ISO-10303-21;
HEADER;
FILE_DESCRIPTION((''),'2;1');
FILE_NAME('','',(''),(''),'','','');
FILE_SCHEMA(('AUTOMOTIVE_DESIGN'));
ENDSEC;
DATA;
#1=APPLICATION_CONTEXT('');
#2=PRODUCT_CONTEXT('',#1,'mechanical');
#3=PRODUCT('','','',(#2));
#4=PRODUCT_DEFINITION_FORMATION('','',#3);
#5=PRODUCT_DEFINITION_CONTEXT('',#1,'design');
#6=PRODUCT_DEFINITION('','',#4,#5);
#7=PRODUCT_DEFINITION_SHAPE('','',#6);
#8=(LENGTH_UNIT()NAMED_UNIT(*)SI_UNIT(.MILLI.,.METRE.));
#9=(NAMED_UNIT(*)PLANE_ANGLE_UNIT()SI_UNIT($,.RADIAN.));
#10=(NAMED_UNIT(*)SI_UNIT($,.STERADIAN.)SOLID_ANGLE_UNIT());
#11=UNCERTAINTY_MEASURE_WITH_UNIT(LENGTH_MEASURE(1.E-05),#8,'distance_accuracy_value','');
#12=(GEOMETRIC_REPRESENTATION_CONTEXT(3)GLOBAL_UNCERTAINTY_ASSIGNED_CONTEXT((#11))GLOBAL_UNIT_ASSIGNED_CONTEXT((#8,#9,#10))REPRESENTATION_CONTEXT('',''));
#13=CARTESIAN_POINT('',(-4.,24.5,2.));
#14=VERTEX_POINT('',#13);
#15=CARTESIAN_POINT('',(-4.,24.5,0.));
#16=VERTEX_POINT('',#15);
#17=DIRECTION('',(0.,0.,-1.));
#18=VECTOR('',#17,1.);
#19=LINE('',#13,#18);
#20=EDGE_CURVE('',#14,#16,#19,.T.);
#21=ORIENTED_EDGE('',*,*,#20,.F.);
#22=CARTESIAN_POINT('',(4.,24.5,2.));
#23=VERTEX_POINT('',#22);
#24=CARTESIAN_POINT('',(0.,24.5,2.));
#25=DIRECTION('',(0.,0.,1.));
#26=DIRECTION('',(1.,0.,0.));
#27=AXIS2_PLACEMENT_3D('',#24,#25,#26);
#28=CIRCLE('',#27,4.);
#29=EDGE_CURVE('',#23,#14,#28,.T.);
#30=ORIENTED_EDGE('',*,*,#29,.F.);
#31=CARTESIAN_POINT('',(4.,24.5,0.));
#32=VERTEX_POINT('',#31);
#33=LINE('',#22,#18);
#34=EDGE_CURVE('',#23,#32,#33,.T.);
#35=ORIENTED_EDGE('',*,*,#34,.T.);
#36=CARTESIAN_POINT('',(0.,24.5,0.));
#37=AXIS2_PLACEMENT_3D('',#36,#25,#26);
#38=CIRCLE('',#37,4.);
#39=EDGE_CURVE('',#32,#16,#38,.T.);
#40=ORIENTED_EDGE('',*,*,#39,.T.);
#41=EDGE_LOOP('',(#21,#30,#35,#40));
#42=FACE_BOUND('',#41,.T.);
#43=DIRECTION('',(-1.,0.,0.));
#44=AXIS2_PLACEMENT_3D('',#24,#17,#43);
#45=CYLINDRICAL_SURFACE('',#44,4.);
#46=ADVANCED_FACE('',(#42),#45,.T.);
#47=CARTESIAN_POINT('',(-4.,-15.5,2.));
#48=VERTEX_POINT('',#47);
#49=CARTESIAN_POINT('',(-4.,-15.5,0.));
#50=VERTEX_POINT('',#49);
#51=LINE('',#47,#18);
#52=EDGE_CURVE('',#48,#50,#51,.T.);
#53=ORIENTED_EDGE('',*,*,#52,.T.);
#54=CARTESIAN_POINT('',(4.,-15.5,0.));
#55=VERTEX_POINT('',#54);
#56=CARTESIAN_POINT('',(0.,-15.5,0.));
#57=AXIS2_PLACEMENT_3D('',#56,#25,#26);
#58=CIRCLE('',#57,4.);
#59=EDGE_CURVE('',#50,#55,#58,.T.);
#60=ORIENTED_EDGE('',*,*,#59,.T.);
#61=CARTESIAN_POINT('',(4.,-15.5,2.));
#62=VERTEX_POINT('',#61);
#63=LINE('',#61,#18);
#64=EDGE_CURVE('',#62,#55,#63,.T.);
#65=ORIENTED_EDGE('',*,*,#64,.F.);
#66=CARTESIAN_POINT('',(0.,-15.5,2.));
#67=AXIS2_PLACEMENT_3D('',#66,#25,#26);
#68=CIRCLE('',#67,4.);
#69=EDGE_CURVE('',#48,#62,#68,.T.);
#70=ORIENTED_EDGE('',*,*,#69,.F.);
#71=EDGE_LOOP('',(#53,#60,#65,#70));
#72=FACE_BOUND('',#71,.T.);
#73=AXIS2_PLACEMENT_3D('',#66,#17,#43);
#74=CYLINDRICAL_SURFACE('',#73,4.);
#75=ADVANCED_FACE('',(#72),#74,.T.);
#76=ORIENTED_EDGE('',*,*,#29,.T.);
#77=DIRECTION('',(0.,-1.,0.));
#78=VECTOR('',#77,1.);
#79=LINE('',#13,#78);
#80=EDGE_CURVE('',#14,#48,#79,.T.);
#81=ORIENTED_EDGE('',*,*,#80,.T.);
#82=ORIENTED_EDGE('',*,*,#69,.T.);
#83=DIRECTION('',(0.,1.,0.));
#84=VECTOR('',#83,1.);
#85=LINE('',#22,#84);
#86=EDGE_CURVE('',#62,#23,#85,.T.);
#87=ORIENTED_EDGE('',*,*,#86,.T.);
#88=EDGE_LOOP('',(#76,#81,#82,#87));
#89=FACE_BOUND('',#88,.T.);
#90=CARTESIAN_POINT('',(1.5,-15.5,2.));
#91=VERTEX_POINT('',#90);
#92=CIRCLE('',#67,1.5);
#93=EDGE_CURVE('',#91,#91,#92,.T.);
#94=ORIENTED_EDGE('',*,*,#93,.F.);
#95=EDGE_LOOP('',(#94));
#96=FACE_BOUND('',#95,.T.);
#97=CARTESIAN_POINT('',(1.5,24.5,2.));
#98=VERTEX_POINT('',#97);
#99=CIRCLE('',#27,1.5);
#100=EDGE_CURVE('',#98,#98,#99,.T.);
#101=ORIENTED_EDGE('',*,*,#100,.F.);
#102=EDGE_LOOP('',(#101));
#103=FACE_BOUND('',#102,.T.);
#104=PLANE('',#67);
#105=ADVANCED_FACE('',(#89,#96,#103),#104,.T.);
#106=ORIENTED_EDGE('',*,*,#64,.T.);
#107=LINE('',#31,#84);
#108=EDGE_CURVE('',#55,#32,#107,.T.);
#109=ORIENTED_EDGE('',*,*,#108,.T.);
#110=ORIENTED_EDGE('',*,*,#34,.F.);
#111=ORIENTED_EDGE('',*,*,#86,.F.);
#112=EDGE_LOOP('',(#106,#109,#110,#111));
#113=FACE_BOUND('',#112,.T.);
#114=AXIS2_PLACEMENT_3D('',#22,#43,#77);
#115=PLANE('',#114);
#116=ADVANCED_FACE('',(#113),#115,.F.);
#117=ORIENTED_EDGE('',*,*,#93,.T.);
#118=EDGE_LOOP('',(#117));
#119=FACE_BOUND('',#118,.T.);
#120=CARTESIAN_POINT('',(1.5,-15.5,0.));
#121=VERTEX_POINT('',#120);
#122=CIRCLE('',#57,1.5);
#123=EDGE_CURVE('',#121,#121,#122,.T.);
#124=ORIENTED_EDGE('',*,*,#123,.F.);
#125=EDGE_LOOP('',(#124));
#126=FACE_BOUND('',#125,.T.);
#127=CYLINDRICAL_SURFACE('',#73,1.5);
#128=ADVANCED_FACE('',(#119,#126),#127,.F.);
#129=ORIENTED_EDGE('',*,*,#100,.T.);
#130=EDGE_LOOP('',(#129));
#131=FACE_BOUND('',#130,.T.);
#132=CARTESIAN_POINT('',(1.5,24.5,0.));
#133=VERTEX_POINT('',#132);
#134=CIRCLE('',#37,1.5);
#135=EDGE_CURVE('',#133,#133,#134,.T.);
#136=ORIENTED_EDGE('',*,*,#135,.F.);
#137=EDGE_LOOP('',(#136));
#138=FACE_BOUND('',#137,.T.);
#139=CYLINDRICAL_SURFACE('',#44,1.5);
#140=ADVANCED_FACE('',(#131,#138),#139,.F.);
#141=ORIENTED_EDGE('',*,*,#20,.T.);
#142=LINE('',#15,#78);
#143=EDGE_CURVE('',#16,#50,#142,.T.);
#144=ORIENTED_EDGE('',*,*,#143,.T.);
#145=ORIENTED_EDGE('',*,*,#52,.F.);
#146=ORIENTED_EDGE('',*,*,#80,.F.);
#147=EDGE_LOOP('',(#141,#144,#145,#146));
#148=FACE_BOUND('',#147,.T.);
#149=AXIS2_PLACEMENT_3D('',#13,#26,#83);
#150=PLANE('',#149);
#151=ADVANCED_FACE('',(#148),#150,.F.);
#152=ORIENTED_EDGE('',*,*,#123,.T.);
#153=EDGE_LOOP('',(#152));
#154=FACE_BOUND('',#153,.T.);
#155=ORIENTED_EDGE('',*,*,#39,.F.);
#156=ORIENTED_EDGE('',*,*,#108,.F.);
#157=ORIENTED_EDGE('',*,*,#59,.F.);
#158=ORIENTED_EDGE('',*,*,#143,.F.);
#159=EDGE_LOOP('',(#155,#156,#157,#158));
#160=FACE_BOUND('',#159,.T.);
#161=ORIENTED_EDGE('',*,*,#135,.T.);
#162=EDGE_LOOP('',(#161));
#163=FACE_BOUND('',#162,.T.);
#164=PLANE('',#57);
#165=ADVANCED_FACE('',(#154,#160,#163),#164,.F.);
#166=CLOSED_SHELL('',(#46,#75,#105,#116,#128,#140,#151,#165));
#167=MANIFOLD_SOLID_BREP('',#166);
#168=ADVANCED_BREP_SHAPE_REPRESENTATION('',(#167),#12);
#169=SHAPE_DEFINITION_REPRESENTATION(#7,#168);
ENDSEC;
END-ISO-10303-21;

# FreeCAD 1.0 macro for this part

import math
import FreeCAD as App
import Part
import Sketcher

V = App.Vector
Q = App.Units.Quantity

doc = App.newDocument("Part")
body = doc.addObject("PartDesign::Body", "Body")

sketch1 = body.newObject("Sketcher::SketchObject", "Sketch")
sketch1.AttachmentSupport = (doc.getObject("XY_Plane"), [""])
sketch1.MapMode = "FlatFace"
sketch1.addGeometry([
    Part.LineSegment(V(-4, 24.5, 0), V(-4, -15.5, 0)),
    Part.ArcOfCircle(Part.Circle(V(0, -15.5, 0), V(0, 0, 1), 4), math.radians(180), math.radians(360)),
    Part.LineSegment(V(4, -15.5, 0), V(4, 24.5, 0)),
    Part.ArcOfCircle(Part.Circle(V(0, 24.5, 0), V(0, 0, 1), 4), math.radians(0), math.radians(180)),
    Part.Circle(V(0, -15.5, 0), V(0, 0, 1), 1.5),
    Part.Circle(V(0, 24.5, 0), V(0, 0, 1), 1.5),
], False)
sketch1.addConstraint([
    Sketcher.Constraint("Tangent", 0, 2, 1, 1),
    Sketcher.Constraint("Tangent", 1, 2, 2, 1),
    Sketcher.Constraint("Tangent", 2, 2, 3, 1),
    Sketcher.Constraint("Tangent", 3, 2, 0, 1),
    Sketcher.Constraint("Vertical", 0),
    Sketcher.Constraint("Vertical", 2),
    Sketcher.Constraint("Coincident", 4, 3, 1, 3),
    Sketcher.Constraint("Coincident", 5, 3, 3, 3),
    Sketcher.Constraint("Equal", 4, 5),
    Sketcher.Constraint("PointOnObject", 1, 3, -2),
    Sketcher.Constraint("Diameter", 4, Q("3 mm")),
    Sketcher.Constraint("Radius", 1, Q("4 mm")),
    Sketcher.Constraint("DistanceY", 0, 2, 0, 1, Q("40 mm")),
    Sketcher.Constraint("DistanceY", 1, 3, -1, 1, Q("15.5 mm")),
])
pad1 = body.newObject("PartDesign::Pad", "Pad")
pad1.Profile = sketch1
pad1.Length = 2

doc.recompute()
